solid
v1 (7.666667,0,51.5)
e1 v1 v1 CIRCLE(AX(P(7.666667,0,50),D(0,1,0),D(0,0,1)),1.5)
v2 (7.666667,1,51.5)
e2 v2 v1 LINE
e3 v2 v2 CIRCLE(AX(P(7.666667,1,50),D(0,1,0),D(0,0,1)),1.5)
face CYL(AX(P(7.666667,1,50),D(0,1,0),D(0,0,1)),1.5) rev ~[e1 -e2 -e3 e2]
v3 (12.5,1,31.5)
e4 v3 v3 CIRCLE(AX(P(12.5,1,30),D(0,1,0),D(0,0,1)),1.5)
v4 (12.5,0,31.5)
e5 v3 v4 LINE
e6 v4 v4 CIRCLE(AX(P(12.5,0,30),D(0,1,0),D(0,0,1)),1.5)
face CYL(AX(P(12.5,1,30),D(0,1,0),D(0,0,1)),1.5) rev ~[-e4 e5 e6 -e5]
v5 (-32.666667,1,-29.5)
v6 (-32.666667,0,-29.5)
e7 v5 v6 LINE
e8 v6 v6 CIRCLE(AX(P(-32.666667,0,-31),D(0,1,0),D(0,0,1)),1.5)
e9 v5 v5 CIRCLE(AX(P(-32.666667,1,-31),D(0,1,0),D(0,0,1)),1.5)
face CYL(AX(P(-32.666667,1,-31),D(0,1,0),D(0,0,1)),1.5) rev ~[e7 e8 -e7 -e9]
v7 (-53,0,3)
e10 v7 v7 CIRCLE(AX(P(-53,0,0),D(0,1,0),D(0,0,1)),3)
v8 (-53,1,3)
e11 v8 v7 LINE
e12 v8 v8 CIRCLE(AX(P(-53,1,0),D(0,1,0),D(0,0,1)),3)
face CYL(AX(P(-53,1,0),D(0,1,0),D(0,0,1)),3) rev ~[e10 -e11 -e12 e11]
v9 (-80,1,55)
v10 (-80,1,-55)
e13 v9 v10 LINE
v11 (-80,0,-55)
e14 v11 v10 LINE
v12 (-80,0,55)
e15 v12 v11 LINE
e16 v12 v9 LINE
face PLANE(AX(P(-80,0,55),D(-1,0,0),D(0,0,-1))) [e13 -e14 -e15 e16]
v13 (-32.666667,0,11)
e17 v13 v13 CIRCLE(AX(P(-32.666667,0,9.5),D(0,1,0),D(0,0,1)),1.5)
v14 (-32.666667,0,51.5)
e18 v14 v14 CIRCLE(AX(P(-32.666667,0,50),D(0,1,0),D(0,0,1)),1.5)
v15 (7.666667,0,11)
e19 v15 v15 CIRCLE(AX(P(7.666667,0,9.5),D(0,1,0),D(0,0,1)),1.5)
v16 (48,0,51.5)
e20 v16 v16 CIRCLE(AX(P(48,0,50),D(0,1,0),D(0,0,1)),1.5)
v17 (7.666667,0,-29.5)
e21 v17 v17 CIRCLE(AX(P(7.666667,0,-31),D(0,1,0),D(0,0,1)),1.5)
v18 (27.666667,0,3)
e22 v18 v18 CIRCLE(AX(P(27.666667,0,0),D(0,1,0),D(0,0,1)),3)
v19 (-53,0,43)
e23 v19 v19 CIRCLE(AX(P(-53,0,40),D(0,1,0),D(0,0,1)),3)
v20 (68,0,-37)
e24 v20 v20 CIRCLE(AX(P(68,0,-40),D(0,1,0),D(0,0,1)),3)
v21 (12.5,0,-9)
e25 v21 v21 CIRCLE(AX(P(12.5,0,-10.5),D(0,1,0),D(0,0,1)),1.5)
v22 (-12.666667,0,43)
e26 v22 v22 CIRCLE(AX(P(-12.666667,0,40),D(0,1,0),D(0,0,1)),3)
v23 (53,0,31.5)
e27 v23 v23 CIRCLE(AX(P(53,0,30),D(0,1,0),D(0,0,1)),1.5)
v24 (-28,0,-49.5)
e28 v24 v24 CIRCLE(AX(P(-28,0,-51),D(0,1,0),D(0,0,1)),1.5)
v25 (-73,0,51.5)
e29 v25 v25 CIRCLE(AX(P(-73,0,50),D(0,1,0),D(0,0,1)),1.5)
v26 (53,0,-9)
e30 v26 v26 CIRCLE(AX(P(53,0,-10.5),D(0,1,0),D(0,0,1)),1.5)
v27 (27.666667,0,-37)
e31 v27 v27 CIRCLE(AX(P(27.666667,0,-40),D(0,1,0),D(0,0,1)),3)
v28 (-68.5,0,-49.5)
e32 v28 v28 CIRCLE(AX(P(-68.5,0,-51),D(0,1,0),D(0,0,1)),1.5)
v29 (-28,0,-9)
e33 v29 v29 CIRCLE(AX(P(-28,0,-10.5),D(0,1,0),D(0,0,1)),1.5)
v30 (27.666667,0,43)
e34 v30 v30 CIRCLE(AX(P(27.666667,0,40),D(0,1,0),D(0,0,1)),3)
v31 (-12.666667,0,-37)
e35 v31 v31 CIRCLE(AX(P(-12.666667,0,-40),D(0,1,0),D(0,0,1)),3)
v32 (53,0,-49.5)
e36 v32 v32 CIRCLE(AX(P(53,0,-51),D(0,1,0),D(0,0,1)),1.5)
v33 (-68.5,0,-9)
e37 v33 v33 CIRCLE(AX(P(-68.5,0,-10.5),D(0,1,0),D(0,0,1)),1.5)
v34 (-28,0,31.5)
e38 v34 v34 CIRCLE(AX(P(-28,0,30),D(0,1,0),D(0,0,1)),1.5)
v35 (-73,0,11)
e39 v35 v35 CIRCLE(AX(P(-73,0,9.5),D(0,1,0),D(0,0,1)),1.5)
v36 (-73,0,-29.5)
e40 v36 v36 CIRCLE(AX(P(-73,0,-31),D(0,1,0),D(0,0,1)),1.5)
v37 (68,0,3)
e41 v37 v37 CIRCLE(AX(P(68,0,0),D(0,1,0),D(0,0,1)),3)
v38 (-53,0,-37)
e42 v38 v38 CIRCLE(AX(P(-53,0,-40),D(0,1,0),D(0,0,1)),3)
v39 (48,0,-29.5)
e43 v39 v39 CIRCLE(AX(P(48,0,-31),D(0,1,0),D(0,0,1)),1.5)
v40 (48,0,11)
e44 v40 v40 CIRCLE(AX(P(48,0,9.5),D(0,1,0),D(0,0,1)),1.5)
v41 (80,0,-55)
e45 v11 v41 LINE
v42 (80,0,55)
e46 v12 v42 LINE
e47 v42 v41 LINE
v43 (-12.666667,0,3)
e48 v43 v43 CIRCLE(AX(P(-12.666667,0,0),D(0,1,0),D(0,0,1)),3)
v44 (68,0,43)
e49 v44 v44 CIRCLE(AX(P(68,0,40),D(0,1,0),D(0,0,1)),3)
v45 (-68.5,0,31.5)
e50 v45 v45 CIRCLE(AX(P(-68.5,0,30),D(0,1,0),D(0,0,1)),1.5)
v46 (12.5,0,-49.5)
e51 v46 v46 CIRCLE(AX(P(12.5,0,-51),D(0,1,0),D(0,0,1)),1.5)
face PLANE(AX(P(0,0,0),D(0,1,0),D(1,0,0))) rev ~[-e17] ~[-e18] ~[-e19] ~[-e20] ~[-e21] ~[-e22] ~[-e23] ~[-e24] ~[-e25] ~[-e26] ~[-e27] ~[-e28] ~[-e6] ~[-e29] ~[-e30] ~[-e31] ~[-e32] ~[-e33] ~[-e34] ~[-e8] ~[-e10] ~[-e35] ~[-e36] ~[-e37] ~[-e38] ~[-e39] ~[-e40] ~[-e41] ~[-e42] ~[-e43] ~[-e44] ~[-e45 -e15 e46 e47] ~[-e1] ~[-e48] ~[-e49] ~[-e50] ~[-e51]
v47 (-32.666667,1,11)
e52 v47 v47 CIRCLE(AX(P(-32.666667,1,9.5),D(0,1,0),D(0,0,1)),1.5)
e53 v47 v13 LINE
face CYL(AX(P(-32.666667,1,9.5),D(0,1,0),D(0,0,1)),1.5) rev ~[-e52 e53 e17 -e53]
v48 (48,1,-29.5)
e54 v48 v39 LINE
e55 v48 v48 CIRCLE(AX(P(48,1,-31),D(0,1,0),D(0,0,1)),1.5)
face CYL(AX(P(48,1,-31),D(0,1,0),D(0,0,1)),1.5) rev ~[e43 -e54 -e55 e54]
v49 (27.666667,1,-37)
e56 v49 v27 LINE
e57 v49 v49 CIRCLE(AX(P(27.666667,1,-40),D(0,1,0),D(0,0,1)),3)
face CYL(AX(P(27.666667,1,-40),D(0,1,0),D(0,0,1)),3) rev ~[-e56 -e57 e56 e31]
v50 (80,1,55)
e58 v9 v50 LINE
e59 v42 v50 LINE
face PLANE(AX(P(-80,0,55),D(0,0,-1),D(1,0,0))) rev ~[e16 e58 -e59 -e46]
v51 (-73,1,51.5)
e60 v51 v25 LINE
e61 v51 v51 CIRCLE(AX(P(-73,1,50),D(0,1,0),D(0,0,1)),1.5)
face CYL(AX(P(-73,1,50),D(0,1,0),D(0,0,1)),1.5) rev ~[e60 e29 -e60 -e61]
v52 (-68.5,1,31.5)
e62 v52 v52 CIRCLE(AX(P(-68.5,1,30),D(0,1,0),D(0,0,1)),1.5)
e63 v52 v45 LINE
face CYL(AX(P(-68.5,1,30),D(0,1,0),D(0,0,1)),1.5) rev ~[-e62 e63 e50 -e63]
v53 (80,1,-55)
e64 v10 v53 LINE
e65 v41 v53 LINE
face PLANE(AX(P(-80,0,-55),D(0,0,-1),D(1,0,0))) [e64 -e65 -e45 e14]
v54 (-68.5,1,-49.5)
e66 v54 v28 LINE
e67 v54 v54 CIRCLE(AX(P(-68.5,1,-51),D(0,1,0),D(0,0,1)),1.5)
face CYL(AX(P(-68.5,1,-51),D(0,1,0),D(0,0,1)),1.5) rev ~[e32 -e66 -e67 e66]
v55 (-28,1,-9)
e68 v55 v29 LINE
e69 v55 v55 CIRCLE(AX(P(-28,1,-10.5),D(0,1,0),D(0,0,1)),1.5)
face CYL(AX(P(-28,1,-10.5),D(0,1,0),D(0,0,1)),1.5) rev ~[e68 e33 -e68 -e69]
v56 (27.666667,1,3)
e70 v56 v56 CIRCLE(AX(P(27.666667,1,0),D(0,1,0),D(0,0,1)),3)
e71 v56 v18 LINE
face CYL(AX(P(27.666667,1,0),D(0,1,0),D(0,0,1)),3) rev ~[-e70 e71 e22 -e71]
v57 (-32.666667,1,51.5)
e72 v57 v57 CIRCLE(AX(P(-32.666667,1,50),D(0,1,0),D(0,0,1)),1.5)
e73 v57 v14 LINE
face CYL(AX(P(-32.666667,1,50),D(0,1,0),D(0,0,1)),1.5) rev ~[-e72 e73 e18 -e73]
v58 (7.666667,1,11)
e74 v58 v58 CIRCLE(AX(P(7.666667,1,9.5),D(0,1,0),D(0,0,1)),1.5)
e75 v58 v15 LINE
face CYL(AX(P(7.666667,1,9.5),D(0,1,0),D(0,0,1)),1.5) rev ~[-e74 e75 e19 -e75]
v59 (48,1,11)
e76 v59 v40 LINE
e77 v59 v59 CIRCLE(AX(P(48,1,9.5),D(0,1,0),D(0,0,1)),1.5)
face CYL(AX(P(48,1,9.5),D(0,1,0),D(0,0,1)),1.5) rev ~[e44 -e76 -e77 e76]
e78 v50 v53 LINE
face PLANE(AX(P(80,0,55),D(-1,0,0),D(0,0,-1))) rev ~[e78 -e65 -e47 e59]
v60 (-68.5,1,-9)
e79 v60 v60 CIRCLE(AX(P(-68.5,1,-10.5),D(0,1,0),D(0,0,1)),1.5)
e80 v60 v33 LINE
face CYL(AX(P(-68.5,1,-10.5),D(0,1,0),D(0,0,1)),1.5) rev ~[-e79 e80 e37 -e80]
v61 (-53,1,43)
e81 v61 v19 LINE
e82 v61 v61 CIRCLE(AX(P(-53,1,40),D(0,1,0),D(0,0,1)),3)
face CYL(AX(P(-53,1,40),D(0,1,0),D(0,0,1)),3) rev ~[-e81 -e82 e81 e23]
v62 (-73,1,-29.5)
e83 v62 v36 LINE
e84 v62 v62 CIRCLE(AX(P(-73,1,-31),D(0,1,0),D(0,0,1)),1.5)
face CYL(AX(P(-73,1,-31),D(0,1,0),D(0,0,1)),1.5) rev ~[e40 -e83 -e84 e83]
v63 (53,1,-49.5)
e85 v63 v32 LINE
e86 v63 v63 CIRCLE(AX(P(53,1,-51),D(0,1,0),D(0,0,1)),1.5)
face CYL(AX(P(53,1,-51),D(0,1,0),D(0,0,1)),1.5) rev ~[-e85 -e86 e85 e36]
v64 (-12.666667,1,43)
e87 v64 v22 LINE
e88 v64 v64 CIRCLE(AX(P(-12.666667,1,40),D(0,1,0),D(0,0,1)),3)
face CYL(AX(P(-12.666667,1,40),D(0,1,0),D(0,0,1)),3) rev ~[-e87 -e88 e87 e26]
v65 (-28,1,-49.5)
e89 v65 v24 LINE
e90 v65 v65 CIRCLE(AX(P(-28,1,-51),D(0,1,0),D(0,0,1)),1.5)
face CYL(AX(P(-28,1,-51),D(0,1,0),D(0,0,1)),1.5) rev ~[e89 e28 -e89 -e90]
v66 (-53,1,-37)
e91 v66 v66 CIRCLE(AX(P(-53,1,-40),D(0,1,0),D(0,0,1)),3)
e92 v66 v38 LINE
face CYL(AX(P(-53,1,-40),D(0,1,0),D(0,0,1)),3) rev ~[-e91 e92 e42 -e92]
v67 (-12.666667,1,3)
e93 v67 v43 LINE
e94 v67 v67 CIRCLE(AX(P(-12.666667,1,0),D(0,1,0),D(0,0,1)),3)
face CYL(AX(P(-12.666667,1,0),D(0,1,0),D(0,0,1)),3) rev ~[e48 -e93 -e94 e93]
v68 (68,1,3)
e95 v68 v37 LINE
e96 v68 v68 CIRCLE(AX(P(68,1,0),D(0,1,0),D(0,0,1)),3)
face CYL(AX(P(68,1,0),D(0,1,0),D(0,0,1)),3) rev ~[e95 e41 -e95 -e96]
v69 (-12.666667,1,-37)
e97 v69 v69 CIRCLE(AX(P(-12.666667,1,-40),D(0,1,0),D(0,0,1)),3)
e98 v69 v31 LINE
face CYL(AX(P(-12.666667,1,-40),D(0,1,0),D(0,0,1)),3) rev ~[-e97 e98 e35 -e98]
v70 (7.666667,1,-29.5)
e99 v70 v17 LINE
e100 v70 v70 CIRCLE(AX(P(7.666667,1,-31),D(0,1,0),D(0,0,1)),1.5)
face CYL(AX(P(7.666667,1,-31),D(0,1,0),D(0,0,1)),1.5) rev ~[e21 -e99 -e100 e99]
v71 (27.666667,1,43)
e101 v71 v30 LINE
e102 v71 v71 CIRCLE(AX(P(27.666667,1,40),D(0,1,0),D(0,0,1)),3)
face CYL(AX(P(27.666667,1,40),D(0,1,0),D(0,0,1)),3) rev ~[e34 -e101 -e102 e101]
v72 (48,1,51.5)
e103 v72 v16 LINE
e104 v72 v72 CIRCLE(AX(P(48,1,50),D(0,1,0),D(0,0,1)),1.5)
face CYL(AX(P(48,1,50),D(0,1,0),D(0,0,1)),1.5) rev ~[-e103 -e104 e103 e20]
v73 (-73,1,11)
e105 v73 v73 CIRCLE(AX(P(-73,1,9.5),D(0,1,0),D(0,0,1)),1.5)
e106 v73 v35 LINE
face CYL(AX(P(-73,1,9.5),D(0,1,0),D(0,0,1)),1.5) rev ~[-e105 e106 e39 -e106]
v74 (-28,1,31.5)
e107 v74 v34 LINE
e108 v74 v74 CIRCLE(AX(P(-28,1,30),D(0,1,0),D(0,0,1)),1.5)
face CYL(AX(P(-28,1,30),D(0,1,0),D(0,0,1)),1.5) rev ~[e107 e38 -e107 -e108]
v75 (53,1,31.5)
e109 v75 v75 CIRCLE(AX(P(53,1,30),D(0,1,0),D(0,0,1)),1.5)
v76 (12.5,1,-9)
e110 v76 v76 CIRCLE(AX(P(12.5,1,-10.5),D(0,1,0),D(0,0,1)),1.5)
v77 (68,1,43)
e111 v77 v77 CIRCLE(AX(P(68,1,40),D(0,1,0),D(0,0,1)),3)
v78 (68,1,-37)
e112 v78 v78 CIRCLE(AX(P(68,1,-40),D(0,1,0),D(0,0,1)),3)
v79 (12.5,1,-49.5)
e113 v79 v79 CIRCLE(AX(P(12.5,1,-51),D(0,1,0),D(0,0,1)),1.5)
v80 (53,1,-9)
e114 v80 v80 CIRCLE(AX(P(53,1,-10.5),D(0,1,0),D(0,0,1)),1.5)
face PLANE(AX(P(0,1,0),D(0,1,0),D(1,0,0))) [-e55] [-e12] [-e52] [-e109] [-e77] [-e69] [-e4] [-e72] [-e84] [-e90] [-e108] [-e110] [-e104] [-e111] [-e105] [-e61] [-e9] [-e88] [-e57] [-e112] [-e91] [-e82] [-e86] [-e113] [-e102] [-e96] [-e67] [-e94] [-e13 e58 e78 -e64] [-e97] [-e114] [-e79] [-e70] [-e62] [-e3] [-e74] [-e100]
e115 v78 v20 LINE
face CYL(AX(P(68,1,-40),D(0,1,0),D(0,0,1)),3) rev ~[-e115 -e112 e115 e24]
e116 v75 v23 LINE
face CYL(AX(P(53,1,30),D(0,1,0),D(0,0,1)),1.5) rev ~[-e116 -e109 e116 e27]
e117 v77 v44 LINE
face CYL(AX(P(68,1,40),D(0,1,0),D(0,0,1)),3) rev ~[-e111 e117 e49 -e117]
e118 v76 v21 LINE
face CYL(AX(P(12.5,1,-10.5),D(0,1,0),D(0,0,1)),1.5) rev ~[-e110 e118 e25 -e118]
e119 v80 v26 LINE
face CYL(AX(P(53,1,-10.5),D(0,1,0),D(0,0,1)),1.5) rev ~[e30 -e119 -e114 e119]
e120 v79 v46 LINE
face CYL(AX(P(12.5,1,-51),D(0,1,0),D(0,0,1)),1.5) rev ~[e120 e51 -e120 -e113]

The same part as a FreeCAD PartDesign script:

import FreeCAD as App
import Part
import Sketcher

V = App.Vector


def add_polygon(sketch, points):
    """Adds a closed chain of lines whose ends are joined by coincident constraints."""
    first, n = sketch.GeometryCount, len(points)
    for a, b in zip(points, points[1:] + points[:1]):
        sketch.addGeometry(Part.LineSegment(App.Vector(*a, 0), App.Vector(*b, 0)), False)
    for i in range(n):
        sketch.addConstraint(Sketcher.Constraint("Coincident", first + i, 2, first + (i + 1) % n, 1))

doc = App.newDocument("Part")
body = doc.addObject("PartDesign::Body", "Body")

sketch1 = body.newObject("Sketcher::SketchObject", "Sketch")
sketch1.AttachmentSupport = (doc.getObject("XZ_Plane"), [""])
sketch1.MapMode = "FlatFace"
add_polygon(sketch1, [(-80, -55), (-80, 55), (80, 55), (80, -55)])
sketch1.addConstraint([
    Sketcher.Constraint("Vertical", 0),
    Sketcher.Constraint("Horizontal", 1),
    Sketcher.Constraint("Vertical", 2),
    Sketcher.Constraint("Horizontal", 3),
    Sketcher.Constraint("Symmetric", 0, 2, 2, 2, -1, 1),
    Sketcher.Constraint("DistanceX", 1, 1, 1, 2, 160.0),
    Sketcher.Constraint("DistanceY", 0, 1, 0, 2, 110.0),
])
pad1 = body.newObject("PartDesign::Pad", "Pad")
pad1.Profile = sketch1
pad1.Length = 1
pad1.Reversed = True

sketch2 = body.newObject("Sketcher::SketchObject", "Sketch001")
sketch2.AttachmentSupport = (doc.getObject("XZ_Plane"), [""])
sketch2.MapMode = "FlatFace"
sketch2.AttachmentOffset = App.Placement(V(0, 0, -1), App.Rotation())
sketch2.addGeometry([
    Part.Circle(V(-53, -40, 0), V(0, 0, 1), 3),
    Part.Circle(V(-12.7, -40, 0), V(0, 0, 1), 3),
    Part.Circle(V(27.7, -40, 0), V(0, 0, 1), 3),
    Part.Circle(V(68, -40, 0), V(0, 0, 1), 3),
    Part.Circle(V(-12.7, 0, 0), V(0, 0, 1), 3),
    Part.Circle(V(27.7, 0, 0), V(0, 0, 1), 3),
    Part.Circle(V(68, 0, 0), V(0, 0, 1), 3),
    Part.Circle(V(-12.7, 40, 0), V(0, 0, 1), 3),
    Part.Circle(V(27.7, 40, 0), V(0, 0, 1), 3),
    Part.Circle(V(68, 40, 0), V(0, 0, 1), 3),
    Part.Circle(V(-53, 0, 0), V(0, 0, 1), 3),
    Part.Circle(V(-53, 40, 0), V(0, 0, 1), 3),
    Part.Circle(V(-68.5, -51, 0), V(0, 0, 1), 1.5),
    Part.Circle(V(-28, -51, 0), V(0, 0, 1), 1.5),
    Part.Circle(V(12.5, -51, 0), V(0, 0, 1), 1.5),
    Part.Circle(V(53, -51, 0), V(0, 0, 1), 1.5),
    Part.Circle(V(-28, -10.5, 0), V(0, 0, 1), 1.5),
    Part.Circle(V(12.5, -10.5, 0), V(0, 0, 1), 1.5),
    Part.Circle(V(53, -10.5, 0), V(0, 0, 1), 1.5),
    Part.Circle(V(-28, 30, 0), V(0, 0, 1), 1.5),
    Part.Circle(V(12.5, 30, 0), V(0, 0, 1), 1.5),
    Part.Circle(V(53, 30, 0), V(0, 0, 1), 1.5),
    Part.Circle(V(-68.5, -10.5, 0), V(0, 0, 1), 1.5),
    Part.Circle(V(-68.5, 30, 0), V(0, 0, 1), 1.5),
    Part.Circle(V(-73, -31, 0), V(0, 0, 1), 1.5),
    Part.Circle(V(-32.7, -31, 0), V(0, 0, 1), 1.5),
    Part.Circle(V(7.7, -31, 0), V(0, 0, 1), 1.5),
    Part.Circle(V(48, -31, 0), V(0, 0, 1), 1.5),
    Part.Circle(V(-32.7, 9.5, 0), V(0, 0, 1), 1.5),
    Part.Circle(V(7.7, 9.5, 0), V(0, 0, 1), 1.5),
    Part.Circle(V(48, 9.5, 0), V(0, 0, 1), 1.5),
    Part.Circle(V(-32.7, 50, 0), V(0, 0, 1), 1.5),
    Part.Circle(V(7.7, 50, 0), V(0, 0, 1), 1.5),
    Part.Circle(V(48, 50, 0), V(0, 0, 1), 1.5),
    Part.Circle(V(-73, 9.5, 0), V(0, 0, 1), 1.5),
    Part.Circle(V(-73, 50, 0), V(0, 0, 1), 1.5),
], False)
sketch2.addConstraint([
    Sketcher.Constraint("Equal", 0, 1),
    Sketcher.Constraint("Equal", 1, 2),
    Sketcher.Constraint("Equal", 2, 3),
    Sketcher.Constraint("Equal", 3, 4),
    Sketcher.Constraint("Equal", 4, 5),
    Sketcher.Constraint("Equal", 5, 6),
    Sketcher.Constraint("Equal", 6, 7),
    Sketcher.Constraint("Equal", 7, 8),
    Sketcher.Constraint("Equal", 8, 9),
    Sketcher.Constraint("Equal", 9, 10),
    Sketcher.Constraint("Equal", 10, 11),
    Sketcher.Constraint("Equal", 12, 13),
    Sketcher.Constraint("Equal", 13, 14),
    Sketcher.Constraint("Equal", 14, 15),
    Sketcher.Constraint("Equal", 15, 16),
    Sketcher.Constraint("Equal", 16, 17),
    Sketcher.Constraint("Equal", 17, 18),
    Sketcher.Constraint("Equal", 18, 19),
    Sketcher.Constraint("Equal", 19, 20),
    Sketcher.Constraint("Equal", 20, 21),
    Sketcher.Constraint("Equal", 21, 22),
    Sketcher.Constraint("Equal", 22, 23),
    Sketcher.Constraint("Equal", 23, 24),
    Sketcher.Constraint("Equal", 24, 25),
    Sketcher.Constraint("Equal", 25, 26),
    Sketcher.Constraint("Equal", 26, 27),
    Sketcher.Constraint("Equal", 27, 28),
    Sketcher.Constraint("Equal", 28, 29),
    Sketcher.Constraint("Equal", 29, 30),
    Sketcher.Constraint("Equal", 30, 31),
    Sketcher.Constraint("Equal", 31, 32),
    Sketcher.Constraint("Equal", 32, 33),
    Sketcher.Constraint("Equal", 33, 34),
    Sketcher.Constraint("Equal", 34, 35),
    Sketcher.Constraint("Symmetric", 1, 3, 7, 3, -1),
    Sketcher.Constraint("Symmetric", 2, 3, 8, 3, -1),
    Sketcher.Constraint("Symmetric", 3, 3, 9, 3, -1),
    Sketcher.Constraint("Symmetric", 0, 3, 11, 3, -1),
    Sketcher.Constraint("PointOnObject", 4, 3, -1),
    Sketcher.Constraint("PointOnObject", 5, 3, -1),
    Sketcher.Constraint("PointOnObject", 6, 3, -1),
    Sketcher.Constraint("PointOnObject", 10, 3, -1),
    Sketcher.Constraint("Horizontal", 0, 3, 1, 3),
    Sketcher.Constraint("Horizontal", 1, 3, 2, 3),
    Sketcher.Constraint("Horizontal", 2, 3, 3, 3),
    Sketcher.Constraint("Horizontal", 12, 3, 13, 3),
    Sketcher.Constraint("Horizontal", 13, 3, 14, 3),
    Sketcher.Constraint("Horizontal", 14, 3, 15, 3),
    Sketcher.Constraint("Horizontal", 16, 3, 17, 3),
    Sketcher.Constraint("Horizontal", 17, 3, 18, 3),
    Sketcher.Constraint("Horizontal", 19, 3, 20, 3),
    Sketcher.Constraint("Horizontal", 20, 3, 21, 3),
    Sketcher.Constraint("Horizontal", 18, 3, 22, 3),
    Sketcher.Constraint("Horizontal", 21, 3, 23, 3),
    Sketcher.Constraint("Horizontal", 24, 3, 25, 3),
    Sketcher.Constraint("Horizontal", 25, 3, 26, 3),
    Sketcher.Constraint("Horizontal", 26, 3, 27, 3),
    Sketcher.Constraint("Horizontal", 28, 3, 29, 3),
    Sketcher.Constraint("Horizontal", 29, 3, 30, 3),
    Sketcher.Constraint("Horizontal", 31, 3, 32, 3),
    Sketcher.Constraint("Horizontal", 32, 3, 33, 3),
    Sketcher.Constraint("Horizontal", 30, 3, 34, 3),
    Sketcher.Constraint("Horizontal", 33, 3, 35, 3),
    Sketcher.Constraint("Vertical", 1, 3, 4, 3),
    Sketcher.Constraint("Vertical", 2, 3, 5, 3),
    Sketcher.Constraint("Vertical", 3, 3, 6, 3),
    Sketcher.Constraint("Vertical", 0, 3, 10, 3),
    Sketcher.Constraint("Vertical", 13, 3, 16, 3),
    Sketcher.Constraint("Vertical", 14, 3, 17, 3),
    Sketcher.Constraint("Vertical", 15, 3, 18, 3),
    Sketcher.Constraint("Vertical", 16, 3, 19, 3),
    Sketcher.Constraint("Vertical", 17, 3, 20, 3),
    Sketcher.Constraint("Vertical", 18, 3, 21, 3),
    Sketcher.Constraint("Vertical", 12, 3, 22, 3),
    Sketcher.Constraint("Vertical", 22, 3, 23, 3),
    Sketcher.Constraint("Vertical", 25, 3, 28, 3),
    Sketcher.Constraint("Vertical", 26, 3, 29, 3),
    Sketcher.Constraint("Vertical", 27, 3, 30, 3),
    Sketcher.Constraint("Vertical", 28, 3, 31, 3),
    Sketcher.Constraint("Vertical", 29, 3, 32, 3),
    Sketcher.Constraint("Vertical", 30, 3, 33, 3),
    Sketcher.Constraint("Vertical", 24, 3, 34, 3),
    Sketcher.Constraint("Vertical", 34, 3, 35, 3),
    Sketcher.Constraint("Diameter", 0, 6.0),
    Sketcher.Constraint("Diameter", 12, 3.0),
    Sketcher.Constraint("DistanceX", 0, 3, -1, 1, 53.0),
    Sketcher.Constraint("DistanceY", 0, 3, -1, 1, 40.0),
    Sketcher.Constraint("DistanceX", -1, 1, 3, 3, 68.0),
    Sketcher.Constraint("DistanceY", 12, 3, -1, 1, 51.0),
    Sketcher.Constraint("DistanceX", 13, 3, -1, 1, 28.0),
    Sketcher.Constraint("DistanceX", -1, 1, 15, 3, 53.0),
    Sketcher.Constraint("DistanceY", -1, 1, 19, 3, 30.0),
    Sketcher.Constraint("DistanceX", 24, 3, -1, 1, 73.0),
    Sketcher.Constraint("DistanceY", 24, 3, -1, 1, 31.0),
    Sketcher.Constraint("DistanceX", -1, 1, 27, 3, 48.0),
    Sketcher.Constraint("DistanceY", -1, 1, 31, 3, 50.0),
    Sketcher.Constraint("DistanceX", 25, 3, 1, 3, 20.0),
    Sketcher.Constraint("DistanceX", 26, 3, 2, 3, 20.0),
    Sketcher.Constraint("DistanceY", 16, 3, 28, 3, 20.0),
    Sketcher.Constraint("DistanceX", 12, 3, -1, 1, 68.5),
    Sketcher.Constraint("DistanceX", -1, 1, 14, 3, 12.5),
    Sketcher.Constraint("DistanceY", 16, 3, -1, 1, 10.5),
    Sketcher.Constraint("DistanceX", 1, 3, -1, 1, 12.666667),
    Sketcher.Constraint("DistanceX", -1, 1, 2, 3, 27.666667),
])
pocket1 = body.newObject("PartDesign::Pocket", "Pocket")
pocket1.Profile = sketch2
pocket1.Length = 1
pocket1.Reversed = True

doc.recompute()
